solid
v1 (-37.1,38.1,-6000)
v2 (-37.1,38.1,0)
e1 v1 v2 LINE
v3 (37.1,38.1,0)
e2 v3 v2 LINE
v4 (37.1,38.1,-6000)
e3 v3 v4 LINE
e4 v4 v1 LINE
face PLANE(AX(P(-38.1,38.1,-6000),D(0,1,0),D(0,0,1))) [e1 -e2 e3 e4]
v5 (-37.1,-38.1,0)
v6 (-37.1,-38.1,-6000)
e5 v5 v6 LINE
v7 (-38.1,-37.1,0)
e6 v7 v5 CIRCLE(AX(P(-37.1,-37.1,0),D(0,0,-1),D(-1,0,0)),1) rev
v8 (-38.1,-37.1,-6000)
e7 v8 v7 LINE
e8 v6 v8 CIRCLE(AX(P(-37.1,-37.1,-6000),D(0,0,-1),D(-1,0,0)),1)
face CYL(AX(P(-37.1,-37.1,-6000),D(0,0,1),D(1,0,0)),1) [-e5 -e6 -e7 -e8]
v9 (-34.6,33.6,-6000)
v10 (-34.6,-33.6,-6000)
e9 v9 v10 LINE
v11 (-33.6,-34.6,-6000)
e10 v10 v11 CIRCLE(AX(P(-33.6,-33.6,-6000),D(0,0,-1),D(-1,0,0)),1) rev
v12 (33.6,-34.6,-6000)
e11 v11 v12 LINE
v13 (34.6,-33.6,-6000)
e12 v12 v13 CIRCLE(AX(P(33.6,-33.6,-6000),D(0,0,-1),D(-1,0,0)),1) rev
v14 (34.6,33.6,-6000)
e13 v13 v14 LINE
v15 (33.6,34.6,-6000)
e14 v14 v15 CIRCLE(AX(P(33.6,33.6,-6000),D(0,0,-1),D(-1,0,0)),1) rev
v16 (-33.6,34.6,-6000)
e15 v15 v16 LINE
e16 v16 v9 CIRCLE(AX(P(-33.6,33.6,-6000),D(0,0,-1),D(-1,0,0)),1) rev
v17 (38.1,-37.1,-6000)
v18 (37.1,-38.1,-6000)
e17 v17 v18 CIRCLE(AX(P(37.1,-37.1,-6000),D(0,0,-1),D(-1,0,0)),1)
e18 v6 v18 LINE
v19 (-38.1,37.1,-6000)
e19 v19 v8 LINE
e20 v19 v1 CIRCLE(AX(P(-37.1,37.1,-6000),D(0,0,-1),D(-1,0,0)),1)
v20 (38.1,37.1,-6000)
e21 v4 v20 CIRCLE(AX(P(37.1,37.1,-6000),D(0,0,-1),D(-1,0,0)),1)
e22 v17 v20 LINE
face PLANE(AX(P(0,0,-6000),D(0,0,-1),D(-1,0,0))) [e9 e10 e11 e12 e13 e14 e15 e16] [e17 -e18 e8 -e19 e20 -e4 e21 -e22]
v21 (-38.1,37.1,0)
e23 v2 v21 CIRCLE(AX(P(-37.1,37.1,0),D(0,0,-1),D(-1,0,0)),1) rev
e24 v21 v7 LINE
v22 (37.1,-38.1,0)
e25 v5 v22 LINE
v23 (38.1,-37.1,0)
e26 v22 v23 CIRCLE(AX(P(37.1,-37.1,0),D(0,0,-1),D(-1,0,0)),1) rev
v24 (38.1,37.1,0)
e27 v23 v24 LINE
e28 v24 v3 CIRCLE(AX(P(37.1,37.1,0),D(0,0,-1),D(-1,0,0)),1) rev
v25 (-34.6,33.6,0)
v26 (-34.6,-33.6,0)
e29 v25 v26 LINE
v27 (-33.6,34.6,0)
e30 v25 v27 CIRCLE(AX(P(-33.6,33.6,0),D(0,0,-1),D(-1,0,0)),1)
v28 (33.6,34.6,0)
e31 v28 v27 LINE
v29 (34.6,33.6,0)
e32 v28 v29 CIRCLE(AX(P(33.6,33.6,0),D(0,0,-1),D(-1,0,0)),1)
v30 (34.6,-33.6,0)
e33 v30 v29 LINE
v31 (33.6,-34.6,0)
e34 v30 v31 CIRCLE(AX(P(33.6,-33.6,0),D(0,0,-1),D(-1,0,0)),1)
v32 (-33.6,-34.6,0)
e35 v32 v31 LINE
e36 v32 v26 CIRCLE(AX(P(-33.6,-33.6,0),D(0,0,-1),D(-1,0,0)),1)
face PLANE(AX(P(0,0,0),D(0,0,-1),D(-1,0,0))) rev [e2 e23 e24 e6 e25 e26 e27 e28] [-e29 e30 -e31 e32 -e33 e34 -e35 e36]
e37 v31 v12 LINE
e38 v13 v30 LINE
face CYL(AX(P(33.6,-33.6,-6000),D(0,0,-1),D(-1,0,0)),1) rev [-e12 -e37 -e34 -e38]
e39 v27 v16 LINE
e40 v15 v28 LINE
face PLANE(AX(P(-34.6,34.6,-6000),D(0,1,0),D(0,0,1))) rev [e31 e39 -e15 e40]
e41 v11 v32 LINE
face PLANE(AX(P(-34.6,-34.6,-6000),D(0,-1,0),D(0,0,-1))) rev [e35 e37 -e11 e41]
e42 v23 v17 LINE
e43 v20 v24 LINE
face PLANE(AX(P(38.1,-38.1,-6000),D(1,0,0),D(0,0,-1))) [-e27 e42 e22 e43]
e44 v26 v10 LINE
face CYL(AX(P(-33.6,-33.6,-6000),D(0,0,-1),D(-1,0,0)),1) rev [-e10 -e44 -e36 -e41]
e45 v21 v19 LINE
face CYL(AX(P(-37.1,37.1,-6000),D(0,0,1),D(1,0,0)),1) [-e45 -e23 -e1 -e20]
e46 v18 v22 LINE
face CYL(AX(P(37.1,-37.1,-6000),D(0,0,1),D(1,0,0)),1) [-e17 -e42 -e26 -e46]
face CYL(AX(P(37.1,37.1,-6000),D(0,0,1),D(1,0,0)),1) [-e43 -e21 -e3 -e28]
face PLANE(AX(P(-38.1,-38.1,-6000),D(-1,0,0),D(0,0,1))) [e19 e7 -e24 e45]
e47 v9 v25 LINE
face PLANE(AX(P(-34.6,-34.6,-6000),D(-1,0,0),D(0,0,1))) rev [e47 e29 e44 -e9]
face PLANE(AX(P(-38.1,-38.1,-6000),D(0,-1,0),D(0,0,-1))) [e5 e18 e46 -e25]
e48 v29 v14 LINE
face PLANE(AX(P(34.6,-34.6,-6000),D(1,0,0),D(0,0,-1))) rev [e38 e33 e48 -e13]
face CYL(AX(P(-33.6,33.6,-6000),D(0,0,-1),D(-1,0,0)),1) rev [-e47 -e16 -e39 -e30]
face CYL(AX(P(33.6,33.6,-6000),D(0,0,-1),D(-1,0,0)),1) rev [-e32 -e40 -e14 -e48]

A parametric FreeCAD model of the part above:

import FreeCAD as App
import Part
import Sketcher
from FreeCAD import Vector


def edges_at(feature, points):
    """Names of the edges that pass closest to the given points."""
    edges = feature.Shape.Edges
    near = lambda p: min(range(len(edges)), key=lambda i: edges[i].distToShape(Part.Vertex(*p))[0])
    return sorted({f"Edge{near(p) + 1}" for p in points})

doc = App.newDocument("Part")
params = doc.addObject("Spreadsheet::Sheet", "Params")
for row, (alias, value) in enumerate([
    ("sketch1_width", "76.2 mm"),
    ("sketch1_width2", "69.2 mm"),
    ("pad1_length", "6000 mm"),
    ("fillet_radius", "1 mm"),
], start=1):
    params.set(f"A{row}", alias)
    params.set(f"B{row}", "=" + value)
    params.setAlias(f"B{row}", alias)

body = doc.addObject("PartDesign::Body", "Body")

sketch1 = body.newObject("Sketcher::SketchObject", "Sketch")
sketch1.AttachmentSupport = (doc.getObject("XY_Plane"), [""])
sketch1.MapMode = "FlatFace"
sketch1.addGeometry([
    Part.LineSegment(Vector(-38.1, 38.1, 0), Vector(-38.1, -38.1, 0)),
    Part.LineSegment(Vector(-38.1, -38.1, 0), Vector(38.1, -38.1, 0)),
    Part.LineSegment(Vector(38.1, -38.1, 0), Vector(38.1, 38.1, 0)),
    Part.LineSegment(Vector(38.1, 38.1, 0), Vector(-38.1, 38.1, 0)),
    Part.LineSegment(Vector(34.6, -34.6, 0), Vector(-34.6, -34.6, 0)),
    Part.LineSegment(Vector(-34.6, -34.6, 0), Vector(-34.6, 34.6, 0)),
    Part.LineSegment(Vector(-34.6, 34.6, 0), Vector(34.6, 34.6, 0)),
    Part.LineSegment(Vector(34.6, 34.6, 0), Vector(34.6, -34.6, 0)),
], False)
sketch1.addConstraint([
    Sketcher.Constraint("Coincident", 0, 2, 1, 1),
    Sketcher.Constraint("Coincident", 1, 2, 2, 1),
    Sketcher.Constraint("Coincident", 2, 2, 3, 1),
    Sketcher.Constraint("Coincident", 3, 2, 0, 1),
    Sketcher.Constraint("Coincident", 4, 2, 5, 1),
    Sketcher.Constraint("Coincident", 5, 2, 6, 1),
    Sketcher.Constraint("Coincident", 6, 2, 7, 1),
    Sketcher.Constraint("Coincident", 7, 2, 4, 1),
    Sketcher.Constraint("Vertical", 0),
    Sketcher.Constraint("Horizontal", 1),
    Sketcher.Constraint("Vertical", 2),
    Sketcher.Constraint("Horizontal", 3),
    Sketcher.Constraint("Horizontal", 4),
    Sketcher.Constraint("Vertical", 5),
    Sketcher.Constraint("Horizontal", 6),
    Sketcher.Constraint("Vertical", 7),
    Sketcher.Constraint("Symmetric", 0, 2, 2, 2, -1, 1),
    Sketcher.Constraint("Symmetric", 4, 2, 6, 2, -1, 1),
    Sketcher.Constraint("Equal", 3, 0),
    Sketcher.Constraint("Equal", 6, 5),
    Sketcher.Constraint("DistanceX", 1, 1, 1, 2, 76.2),
    Sketcher.Constraint("DistanceX", 4, 2, 4, 1, 69.2),
])
sketch1.setExpression("Constraints[20]", "Params.sketch1_width")
sketch1.setExpression("Constraints[21]", "Params.sketch1_width2")
pad1 = body.newObject("PartDesign::Pad", "Pad")
pad1.Profile = sketch1
pad1.setExpression("Length", "Params.pad1_length")
pad1.Reversed = True
doc.recompute()

fillet = body.newObject("PartDesign::Fillet", "Fillet")
fillet.Base = (pad1, edges_at(pad1, [
    (34.6, -34.6, -3000),
    (-34.6, -34.6, -3000),
    (-34.6, 34.6, -3000),
    (34.6, 34.6, -3000),
    (38.1, -38.1, -3000),
    (-38.1, -38.1, -3000),
    (-38.1, 38.1, -3000),
    (38.1, 38.1, -3000),
]))
fillet.setExpression("Radius", "Params.fillet_radius")

doc.recompute()
